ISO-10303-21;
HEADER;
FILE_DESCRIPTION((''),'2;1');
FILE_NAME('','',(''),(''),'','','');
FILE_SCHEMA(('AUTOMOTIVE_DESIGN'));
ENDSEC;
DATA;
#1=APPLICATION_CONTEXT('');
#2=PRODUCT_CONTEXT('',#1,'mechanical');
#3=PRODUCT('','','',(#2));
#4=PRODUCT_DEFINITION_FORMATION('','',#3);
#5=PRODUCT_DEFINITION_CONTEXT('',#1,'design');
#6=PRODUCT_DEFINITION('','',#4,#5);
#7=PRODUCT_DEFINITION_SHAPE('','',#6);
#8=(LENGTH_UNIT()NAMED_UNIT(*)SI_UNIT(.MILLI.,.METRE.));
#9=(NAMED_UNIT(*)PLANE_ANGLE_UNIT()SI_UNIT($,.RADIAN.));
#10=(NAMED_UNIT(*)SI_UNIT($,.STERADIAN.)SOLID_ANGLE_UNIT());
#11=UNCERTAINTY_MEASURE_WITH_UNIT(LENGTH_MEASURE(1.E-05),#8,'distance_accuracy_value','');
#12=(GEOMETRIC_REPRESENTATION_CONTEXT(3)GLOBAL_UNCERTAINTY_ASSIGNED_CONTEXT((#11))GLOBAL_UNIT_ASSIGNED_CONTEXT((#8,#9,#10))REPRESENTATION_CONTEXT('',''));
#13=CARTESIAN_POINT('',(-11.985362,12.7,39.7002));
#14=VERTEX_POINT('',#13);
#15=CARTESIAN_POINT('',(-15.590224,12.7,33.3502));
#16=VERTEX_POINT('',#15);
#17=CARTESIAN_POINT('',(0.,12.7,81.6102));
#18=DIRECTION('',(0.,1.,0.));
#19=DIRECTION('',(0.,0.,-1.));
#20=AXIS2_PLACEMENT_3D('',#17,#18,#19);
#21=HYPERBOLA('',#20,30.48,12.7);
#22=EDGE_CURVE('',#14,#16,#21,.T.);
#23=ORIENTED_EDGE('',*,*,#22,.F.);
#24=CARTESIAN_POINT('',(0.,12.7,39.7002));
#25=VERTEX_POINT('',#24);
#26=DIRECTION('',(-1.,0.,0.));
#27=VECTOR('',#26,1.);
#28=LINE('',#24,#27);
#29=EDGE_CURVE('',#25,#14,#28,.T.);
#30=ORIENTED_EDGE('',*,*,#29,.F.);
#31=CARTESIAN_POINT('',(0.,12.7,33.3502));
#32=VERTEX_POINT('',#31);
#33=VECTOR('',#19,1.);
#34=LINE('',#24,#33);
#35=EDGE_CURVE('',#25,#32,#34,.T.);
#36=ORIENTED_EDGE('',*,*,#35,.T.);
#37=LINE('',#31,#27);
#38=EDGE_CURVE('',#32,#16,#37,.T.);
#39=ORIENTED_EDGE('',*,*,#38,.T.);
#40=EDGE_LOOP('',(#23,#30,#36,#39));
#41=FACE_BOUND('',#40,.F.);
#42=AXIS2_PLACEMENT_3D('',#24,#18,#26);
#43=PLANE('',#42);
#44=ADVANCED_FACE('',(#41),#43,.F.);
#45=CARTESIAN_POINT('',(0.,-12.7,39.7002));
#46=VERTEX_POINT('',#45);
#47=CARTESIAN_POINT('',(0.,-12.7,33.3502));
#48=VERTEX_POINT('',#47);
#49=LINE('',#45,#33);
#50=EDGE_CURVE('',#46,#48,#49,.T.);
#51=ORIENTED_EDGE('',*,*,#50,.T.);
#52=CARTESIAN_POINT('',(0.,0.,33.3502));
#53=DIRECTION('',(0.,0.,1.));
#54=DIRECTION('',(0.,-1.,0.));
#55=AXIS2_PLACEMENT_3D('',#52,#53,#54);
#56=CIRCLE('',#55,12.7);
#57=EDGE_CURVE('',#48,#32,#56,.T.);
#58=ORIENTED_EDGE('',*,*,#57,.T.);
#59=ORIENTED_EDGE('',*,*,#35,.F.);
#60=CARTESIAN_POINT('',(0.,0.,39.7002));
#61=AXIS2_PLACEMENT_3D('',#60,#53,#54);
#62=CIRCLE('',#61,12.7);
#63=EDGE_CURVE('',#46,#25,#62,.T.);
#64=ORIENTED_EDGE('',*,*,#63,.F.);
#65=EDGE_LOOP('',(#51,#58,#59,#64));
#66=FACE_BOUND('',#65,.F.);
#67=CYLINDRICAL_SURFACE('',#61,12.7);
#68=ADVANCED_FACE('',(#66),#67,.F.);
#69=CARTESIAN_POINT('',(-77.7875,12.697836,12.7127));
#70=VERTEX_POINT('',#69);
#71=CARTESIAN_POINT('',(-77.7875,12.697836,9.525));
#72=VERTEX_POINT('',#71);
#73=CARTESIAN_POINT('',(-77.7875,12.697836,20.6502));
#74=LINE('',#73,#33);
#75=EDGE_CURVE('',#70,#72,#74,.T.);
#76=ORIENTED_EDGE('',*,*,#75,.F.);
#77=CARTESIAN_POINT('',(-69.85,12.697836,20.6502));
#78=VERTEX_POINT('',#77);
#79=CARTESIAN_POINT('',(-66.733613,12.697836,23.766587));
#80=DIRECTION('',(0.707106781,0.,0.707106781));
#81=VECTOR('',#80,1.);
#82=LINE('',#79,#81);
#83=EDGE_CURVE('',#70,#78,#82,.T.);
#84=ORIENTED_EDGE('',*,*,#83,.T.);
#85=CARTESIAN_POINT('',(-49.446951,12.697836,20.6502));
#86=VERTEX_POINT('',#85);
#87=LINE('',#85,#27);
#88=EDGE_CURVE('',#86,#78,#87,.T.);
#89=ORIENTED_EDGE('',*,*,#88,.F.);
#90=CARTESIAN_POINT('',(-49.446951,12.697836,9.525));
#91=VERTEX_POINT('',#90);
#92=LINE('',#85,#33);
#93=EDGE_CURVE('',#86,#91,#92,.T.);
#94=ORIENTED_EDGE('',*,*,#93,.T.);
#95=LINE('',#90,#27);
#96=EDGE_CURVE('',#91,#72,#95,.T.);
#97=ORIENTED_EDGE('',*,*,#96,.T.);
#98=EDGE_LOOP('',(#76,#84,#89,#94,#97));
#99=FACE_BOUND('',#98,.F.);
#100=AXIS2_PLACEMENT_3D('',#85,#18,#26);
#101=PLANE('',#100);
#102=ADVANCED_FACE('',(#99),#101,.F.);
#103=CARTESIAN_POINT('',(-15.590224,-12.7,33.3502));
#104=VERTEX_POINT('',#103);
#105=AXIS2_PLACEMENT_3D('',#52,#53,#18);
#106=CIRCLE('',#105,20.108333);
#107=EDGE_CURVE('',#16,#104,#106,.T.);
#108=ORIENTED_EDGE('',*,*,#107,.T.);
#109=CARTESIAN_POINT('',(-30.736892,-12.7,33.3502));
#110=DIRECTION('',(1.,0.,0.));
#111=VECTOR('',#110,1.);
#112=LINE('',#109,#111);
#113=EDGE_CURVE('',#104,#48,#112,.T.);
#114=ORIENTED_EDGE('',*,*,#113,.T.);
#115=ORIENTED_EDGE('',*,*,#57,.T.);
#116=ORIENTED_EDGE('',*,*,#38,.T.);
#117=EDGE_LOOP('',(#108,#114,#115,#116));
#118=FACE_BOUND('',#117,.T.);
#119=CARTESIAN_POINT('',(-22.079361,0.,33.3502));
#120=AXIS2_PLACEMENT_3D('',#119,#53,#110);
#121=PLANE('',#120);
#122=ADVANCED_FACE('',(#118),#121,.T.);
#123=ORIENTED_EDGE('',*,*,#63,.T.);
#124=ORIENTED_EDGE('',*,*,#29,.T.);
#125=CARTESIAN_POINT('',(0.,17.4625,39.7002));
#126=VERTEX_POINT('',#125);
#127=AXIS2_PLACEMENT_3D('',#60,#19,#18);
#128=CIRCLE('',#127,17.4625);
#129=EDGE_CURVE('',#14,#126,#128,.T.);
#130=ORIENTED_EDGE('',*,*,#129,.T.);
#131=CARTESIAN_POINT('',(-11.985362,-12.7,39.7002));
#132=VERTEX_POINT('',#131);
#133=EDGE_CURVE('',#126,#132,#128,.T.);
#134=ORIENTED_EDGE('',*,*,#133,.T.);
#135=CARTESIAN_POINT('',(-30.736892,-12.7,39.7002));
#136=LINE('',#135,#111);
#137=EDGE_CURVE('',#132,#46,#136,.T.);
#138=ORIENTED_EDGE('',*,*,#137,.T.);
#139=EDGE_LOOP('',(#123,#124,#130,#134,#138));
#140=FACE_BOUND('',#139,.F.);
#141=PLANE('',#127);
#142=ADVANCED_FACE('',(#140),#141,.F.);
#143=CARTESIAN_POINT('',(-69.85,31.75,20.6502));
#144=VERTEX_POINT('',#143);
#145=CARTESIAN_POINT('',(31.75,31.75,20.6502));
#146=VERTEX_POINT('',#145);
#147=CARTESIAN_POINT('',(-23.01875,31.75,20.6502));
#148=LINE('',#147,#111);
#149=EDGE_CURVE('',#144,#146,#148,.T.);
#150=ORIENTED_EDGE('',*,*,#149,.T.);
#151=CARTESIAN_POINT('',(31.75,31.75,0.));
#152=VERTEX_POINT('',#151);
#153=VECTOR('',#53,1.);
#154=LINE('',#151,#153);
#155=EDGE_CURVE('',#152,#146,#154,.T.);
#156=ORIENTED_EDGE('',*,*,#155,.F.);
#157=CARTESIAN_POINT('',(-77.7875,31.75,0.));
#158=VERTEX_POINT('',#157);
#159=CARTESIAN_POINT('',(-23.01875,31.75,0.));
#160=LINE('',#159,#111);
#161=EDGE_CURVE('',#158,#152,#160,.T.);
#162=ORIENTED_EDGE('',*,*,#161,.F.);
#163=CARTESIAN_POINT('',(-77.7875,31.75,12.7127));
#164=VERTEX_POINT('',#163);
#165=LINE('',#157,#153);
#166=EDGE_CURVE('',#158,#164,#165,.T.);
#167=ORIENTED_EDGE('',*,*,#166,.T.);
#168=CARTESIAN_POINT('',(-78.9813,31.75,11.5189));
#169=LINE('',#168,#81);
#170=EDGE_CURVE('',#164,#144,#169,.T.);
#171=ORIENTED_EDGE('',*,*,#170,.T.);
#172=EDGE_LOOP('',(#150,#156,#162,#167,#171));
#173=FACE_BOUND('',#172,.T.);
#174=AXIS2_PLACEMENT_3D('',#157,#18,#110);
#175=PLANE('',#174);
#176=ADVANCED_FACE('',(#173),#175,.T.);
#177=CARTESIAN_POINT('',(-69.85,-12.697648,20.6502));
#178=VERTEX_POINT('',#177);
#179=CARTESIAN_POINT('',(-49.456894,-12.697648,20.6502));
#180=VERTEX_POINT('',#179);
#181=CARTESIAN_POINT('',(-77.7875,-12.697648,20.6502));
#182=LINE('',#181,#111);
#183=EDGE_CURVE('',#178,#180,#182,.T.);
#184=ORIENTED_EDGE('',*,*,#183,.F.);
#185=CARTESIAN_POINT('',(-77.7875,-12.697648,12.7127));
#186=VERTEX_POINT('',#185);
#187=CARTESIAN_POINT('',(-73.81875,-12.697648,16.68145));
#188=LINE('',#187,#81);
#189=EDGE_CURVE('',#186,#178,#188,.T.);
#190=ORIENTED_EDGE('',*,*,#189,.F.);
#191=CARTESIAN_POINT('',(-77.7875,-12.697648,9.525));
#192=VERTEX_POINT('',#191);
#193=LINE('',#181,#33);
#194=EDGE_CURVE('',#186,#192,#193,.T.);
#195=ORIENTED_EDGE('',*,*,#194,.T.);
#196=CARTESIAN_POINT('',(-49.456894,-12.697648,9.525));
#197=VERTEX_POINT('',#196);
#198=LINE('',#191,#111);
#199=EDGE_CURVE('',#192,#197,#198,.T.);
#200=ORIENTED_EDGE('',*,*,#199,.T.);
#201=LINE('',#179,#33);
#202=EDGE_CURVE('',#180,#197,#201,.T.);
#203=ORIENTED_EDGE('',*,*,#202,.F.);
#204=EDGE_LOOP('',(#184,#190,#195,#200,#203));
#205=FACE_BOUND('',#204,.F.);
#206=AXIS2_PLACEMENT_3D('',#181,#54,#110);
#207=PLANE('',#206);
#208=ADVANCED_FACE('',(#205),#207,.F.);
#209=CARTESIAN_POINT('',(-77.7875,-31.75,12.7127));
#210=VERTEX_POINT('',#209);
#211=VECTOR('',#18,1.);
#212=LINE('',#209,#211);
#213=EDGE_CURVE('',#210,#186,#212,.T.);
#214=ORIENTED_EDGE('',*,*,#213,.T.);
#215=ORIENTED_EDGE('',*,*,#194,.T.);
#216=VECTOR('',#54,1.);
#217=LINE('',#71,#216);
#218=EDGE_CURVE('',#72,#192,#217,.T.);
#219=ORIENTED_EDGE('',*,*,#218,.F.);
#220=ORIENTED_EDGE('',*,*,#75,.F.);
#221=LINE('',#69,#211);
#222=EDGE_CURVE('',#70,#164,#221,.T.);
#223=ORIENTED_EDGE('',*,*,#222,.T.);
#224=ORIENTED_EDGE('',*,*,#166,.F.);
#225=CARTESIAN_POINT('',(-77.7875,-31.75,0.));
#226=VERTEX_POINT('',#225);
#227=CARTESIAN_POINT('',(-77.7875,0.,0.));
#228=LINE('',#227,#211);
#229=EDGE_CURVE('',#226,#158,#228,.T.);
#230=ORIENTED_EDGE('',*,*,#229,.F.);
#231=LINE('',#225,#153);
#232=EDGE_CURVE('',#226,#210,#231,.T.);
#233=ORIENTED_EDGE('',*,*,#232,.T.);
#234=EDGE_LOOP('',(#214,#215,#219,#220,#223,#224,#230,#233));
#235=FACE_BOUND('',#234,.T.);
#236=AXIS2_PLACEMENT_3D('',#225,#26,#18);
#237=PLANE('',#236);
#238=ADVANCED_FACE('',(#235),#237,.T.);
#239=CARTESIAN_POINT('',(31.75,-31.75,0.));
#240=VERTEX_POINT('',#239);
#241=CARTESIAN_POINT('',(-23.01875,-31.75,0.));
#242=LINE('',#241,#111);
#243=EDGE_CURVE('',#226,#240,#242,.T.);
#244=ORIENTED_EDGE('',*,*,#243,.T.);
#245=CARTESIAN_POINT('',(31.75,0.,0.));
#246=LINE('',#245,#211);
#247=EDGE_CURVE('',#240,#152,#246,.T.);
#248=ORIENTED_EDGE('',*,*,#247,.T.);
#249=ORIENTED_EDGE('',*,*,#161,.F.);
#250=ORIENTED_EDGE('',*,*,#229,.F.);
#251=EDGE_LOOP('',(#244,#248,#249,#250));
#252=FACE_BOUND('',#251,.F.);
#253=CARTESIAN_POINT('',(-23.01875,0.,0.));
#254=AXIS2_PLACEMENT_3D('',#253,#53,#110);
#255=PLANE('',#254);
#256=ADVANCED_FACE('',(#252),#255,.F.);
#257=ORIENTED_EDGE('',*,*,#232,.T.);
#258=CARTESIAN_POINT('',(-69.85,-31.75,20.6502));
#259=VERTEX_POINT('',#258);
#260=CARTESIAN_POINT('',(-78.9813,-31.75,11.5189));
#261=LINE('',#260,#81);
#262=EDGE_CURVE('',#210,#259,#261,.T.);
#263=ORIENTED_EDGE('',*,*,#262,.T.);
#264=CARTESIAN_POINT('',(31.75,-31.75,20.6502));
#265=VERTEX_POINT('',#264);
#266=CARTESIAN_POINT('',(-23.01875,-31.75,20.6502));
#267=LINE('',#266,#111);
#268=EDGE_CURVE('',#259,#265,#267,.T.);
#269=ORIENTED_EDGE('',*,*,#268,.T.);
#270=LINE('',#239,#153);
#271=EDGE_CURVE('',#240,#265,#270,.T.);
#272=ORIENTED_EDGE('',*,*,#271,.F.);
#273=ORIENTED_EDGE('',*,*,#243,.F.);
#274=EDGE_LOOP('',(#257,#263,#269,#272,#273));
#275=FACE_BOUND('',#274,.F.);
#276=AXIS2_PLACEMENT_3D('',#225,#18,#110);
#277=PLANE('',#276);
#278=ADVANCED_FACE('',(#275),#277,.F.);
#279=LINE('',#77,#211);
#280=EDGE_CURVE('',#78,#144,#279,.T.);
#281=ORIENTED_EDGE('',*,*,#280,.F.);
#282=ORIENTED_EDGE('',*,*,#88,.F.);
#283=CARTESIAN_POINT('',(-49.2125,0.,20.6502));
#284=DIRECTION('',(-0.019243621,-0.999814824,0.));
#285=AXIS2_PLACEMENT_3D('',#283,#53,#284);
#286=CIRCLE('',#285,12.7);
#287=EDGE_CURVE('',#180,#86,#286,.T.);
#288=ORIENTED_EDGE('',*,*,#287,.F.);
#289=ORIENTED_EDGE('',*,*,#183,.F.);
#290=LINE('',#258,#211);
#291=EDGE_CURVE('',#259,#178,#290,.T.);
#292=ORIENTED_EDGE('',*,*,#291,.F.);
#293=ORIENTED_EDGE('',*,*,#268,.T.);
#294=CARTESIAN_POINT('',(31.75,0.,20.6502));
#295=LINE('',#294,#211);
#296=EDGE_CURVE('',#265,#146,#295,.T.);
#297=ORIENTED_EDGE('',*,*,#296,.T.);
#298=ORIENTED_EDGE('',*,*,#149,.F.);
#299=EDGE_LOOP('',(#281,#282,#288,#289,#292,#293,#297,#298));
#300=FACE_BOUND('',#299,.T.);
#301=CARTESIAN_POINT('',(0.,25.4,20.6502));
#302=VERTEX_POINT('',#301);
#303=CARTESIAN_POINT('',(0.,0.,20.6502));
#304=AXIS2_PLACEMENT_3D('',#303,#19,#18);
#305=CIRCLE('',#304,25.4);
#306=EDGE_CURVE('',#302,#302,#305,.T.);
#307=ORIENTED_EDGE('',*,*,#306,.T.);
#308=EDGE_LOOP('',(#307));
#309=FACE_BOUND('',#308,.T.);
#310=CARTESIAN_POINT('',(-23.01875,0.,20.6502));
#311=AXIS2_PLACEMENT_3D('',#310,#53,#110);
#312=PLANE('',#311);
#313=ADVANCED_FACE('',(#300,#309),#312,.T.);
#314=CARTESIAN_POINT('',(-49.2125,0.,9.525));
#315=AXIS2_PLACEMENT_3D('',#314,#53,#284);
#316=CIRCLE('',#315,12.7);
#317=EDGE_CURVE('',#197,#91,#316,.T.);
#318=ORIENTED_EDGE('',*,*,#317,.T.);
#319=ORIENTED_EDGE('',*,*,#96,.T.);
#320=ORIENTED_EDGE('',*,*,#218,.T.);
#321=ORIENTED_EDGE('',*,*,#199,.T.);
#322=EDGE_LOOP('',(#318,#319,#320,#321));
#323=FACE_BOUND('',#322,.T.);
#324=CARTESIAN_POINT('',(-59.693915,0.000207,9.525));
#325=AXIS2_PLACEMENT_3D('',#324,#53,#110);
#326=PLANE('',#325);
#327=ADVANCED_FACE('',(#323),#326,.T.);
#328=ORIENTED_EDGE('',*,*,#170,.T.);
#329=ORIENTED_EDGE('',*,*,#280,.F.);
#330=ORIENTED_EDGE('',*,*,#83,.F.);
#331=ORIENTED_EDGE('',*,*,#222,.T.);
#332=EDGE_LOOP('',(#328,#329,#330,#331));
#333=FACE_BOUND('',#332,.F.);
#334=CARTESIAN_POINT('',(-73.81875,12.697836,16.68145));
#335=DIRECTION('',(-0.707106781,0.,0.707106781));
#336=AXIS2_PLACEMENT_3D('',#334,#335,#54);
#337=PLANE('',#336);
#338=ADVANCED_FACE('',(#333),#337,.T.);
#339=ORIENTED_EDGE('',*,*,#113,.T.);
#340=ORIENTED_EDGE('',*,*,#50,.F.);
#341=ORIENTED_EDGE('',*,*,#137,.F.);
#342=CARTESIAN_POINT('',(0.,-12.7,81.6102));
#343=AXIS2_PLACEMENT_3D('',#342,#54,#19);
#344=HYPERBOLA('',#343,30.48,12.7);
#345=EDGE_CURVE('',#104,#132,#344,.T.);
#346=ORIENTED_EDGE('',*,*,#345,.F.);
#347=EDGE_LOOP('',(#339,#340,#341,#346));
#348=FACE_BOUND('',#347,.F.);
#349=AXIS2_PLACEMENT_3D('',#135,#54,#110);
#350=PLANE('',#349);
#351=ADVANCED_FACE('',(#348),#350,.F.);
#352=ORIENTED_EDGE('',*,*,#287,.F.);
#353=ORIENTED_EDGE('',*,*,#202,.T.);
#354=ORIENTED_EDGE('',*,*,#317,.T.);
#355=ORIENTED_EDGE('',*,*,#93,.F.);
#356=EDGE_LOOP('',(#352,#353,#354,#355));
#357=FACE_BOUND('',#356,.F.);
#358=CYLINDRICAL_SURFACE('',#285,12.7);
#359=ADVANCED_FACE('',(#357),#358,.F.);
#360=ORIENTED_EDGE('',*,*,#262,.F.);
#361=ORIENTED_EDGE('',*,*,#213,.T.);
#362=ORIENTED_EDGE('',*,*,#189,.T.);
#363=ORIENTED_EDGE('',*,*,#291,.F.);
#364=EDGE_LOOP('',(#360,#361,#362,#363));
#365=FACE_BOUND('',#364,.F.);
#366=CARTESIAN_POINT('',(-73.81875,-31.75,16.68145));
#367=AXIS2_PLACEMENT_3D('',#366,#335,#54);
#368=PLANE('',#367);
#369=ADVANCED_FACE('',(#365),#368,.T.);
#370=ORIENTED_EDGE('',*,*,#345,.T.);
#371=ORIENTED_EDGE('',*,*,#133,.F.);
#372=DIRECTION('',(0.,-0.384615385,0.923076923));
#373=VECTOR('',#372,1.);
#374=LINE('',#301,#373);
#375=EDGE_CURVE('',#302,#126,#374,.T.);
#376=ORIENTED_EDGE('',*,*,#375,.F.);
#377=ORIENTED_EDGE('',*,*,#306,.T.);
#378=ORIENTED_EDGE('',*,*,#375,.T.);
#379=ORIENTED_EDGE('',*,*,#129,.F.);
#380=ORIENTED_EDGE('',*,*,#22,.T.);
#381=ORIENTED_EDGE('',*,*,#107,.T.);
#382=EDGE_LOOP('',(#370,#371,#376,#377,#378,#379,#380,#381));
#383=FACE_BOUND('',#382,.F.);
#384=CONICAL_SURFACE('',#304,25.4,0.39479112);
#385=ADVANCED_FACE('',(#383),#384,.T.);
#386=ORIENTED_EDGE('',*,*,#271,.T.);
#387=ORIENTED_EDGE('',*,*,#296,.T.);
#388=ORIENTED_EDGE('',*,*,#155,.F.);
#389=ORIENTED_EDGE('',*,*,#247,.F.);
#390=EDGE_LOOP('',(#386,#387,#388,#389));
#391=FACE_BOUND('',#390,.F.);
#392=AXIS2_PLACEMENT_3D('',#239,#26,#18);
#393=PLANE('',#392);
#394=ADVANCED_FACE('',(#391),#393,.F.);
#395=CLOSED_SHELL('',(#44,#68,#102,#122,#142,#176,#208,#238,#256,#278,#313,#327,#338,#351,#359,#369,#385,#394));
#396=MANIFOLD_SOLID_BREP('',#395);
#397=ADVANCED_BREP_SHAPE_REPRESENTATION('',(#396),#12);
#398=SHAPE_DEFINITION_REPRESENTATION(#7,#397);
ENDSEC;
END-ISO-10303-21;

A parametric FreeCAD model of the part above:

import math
import FreeCAD as App
import Part
import Sketcher
Q = App.Units.Quantity


def edges_at(feature, points):
    """Names of the edges that pass closest to the given points."""
    edges = feature.Shape.Edges
    near = lambda p: min(range(len(edges)), key=lambda i: edges[i].distToShape(Part.Vertex(*p))[0])
    return sorted({f"Edge{near(p) + 1}" for p in points})


def add_polygon(sketch, points):
    """Adds a closed chain of lines whose ends are joined by coincident constraints."""
    first, n = sketch.GeometryCount, len(points)
    for a, b in zip(points, points[1:] + points[:1]):
        sketch.addGeometry(Part.LineSegment(App.Vector(*a, 0), App.Vector(*b, 0)), False)
    for i in range(n):
        sketch.addConstraint(Sketcher.Constraint("Coincident", first + i, 2, first + (i + 1) % n, 1))

doc = App.newDocument("Part")
params = doc.addObject("Spreadsheet::Sheet", "Params")
for row, (alias, value) in enumerate([
    ("sketch1_height", "2.5 in"),
    ("sketch1_width", "4.3125 in"),
    ("pad1_length", "0.813 in"),
    ("sketch2_width", "1 in"),
    ("sketch2_height", "0.75 in"),
    ("sketch2_width2", "0.6875 in"),
    ("revolution_angle", "360 deg"),
    ("sketch3_radius", "0.5 in"),
    ("pocket1_length", "0.25 in"),
    ("sketch4_radius", "0.5 in"),
    ("pocket2_length", "0.438 in"),
    ("chamfer_size", "0.3125 in"),
], start=1):
    params.set(f"A{row}", alias)
    params.set(f"B{row}", "=" + value)
    params.setAlias(f"B{row}", alias)

body = doc.addObject("PartDesign::Body", "Body")

sketch1 = body.newObject("Sketcher::SketchObject", "Sketch")
sketch1.AttachmentSupport = (doc.getObject("XY_Plane"), [""])
sketch1.MapMode = "FlatFace"
add_polygon(sketch1, [(-78, 32), (-78, -32), (32, -32), (32, 32)])
sketch1.addConstraint([
    Sketcher.Constraint("Vertical", 0),
    Sketcher.Constraint("Horizontal", 1),
    Sketcher.Constraint("Vertical", 2),
    Sketcher.Constraint("Horizontal", 3),
    Sketcher.Constraint("DistanceY", 0, 2, 0, 1, Q("2.5 in")),
    Sketcher.Constraint("DistanceX", 1, 1, 1, 2, Q("4.3125 in")),
    Sketcher.Constraint("DistanceY", 0, 2, -1, 1, Q("1.25 in")),
    Sketcher.Constraint("DistanceX", -1, 1, 1, 2, Q("1.25 in")),
])
sketch1.setExpression("Constraints[8]", "Params.sketch1_height")
sketch1.setExpression("Constraints[9]", "Params.sketch1_width")
pad1 = body.newObject("PartDesign::Pad", "Pad")
pad1.Profile = sketch1
pad1.setExpression("Length", "Params.pad1_length")

sketch2 = body.newObject("Sketcher::SketchObject", "Sketch001")
sketch2.AttachmentSupport = (doc.getObject("YZ_Plane"), [""])
sketch2.MapMode = "FlatFace"
add_polygon(sketch2, [(0, 21), (25, 21), (17, 40), (0, 40)])
sketch2.addConstraint([
    Sketcher.Constraint("Horizontal", 0),
    Sketcher.Constraint("Horizontal", 2),
    Sketcher.Constraint("Vertical", 3),
    Sketcher.Constraint("PointOnObject", 2, 2, -2),
    Sketcher.Constraint("DistanceX", 0, 1, 0, 2, Q("1 in")),
    Sketcher.Constraint("DistanceY", 3, 2, 3, 1, Q("0.75 in")),
    Sketcher.Constraint("DistanceX", 2, 2, 2, 1, Q("0.6875 in")),
    Sketcher.Constraint("DistanceY", -1, 1, 0, 2, Q("0.813 in")),
])
sketch2.setExpression("Constraints[8]", "Params.sketch2_width")
sketch2.setExpression("Constraints[9]", "Params.sketch2_height")
sketch2.setExpression("Constraints[10]", "Params.sketch2_width2")
revolution = body.newObject("PartDesign::Revolution", "Revolution")
revolution.Profile = sketch2
revolution.ReferenceAxis = (sketch2, ["V_Axis"])
revolution.setExpression("Angle", "Params.revolution_angle")

sketch3 = body.newObject("Sketcher::SketchObject", "Sketch002")
sketch3.AttachmentSupport = (doc.getObject("XY_Plane"), [""])
sketch3.MapMode = "FlatFace"
sketch3.AttachmentOffset = App.Placement(App.Vector(0, 0, 1.563 * 25.4), App.Rotation())
sketch3.addGeometry([
    Part.LineSegment(App.Vector(-31, -13, 0), App.Vector(0, -13, 0)),
    Part.ArcOfCircle(Part.Circle(App.Vector(0, 0, 0), App.Vector(0, 0, 1), 13), math.radians(-90), math.radians(90)),
    Part.LineSegment(App.Vector(0, 13, 0), App.Vector(-31, 13, 0)),
    Part.LineSegment(App.Vector(-31, 13, 0), App.Vector(-31, -13, 0)),
], False)
sketch3.addConstraint([
    Sketcher.Constraint("Tangent", 0, 2, 1, 1),
    Sketcher.Constraint("Tangent", 1, 2, 2, 1),
    Sketcher.Constraint("Coincident", 2, 2, 3, 1),
    Sketcher.Constraint("Coincident", 3, 2, 0, 1),
    Sketcher.Constraint("Horizontal", 0),
    Sketcher.Constraint("Horizontal", 2),
    Sketcher.Constraint("Vertical", 3),
    Sketcher.Constraint("Coincident", 1, 3, -1, 1),
    Sketcher.Constraint("Radius", 1, Q("0.5 in")),
    Sketcher.Constraint("DistanceX", 0, 1, 0, 2, Q("30.736892 mm")),
])
sketch3.setExpression("Constraints[8]", "Params.sketch3_radius")
pocket1 = body.newObject("PartDesign::Pocket", "Pocket")
pocket1.Profile = sketch3
pocket1.setExpression("Length", "Params.pocket1_length")

sketch4 = body.newObject("Sketcher::SketchObject", "Sketch003")
sketch4.AttachmentSupport = (doc.getObject("XY_Plane"), [""])
sketch4.MapMode = "FlatFace"
sketch4.AttachmentOffset = App.Placement(App.Vector(0, 0, 0.813 * 25.4), App.Rotation())
sketch4.addGeometry([
    Part.LineSegment(App.Vector(-78, -13, 0), App.Vector(-49, -13, 0)),
    Part.ArcOfCircle(Part.Circle(App.Vector(-49, 0, 0), App.Vector(0, 0, 1), 13), math.radians(-91), math.radians(91)),
    Part.LineSegment(App.Vector(-49, 13, 0), App.Vector(-78, 13, 0)),
    Part.LineSegment(App.Vector(-78, 13, 0), App.Vector(-78, -13, 0)),
], False)
sketch4.addConstraint([
    Sketcher.Constraint("Coincident", 0, 2, 1, 1),
    Sketcher.Constraint("Coincident", 1, 2, 2, 1),
    Sketcher.Constraint("Coincident", 2, 2, 3, 1),
    Sketcher.Constraint("Coincident", 3, 2, 0, 1),
    Sketcher.Constraint("Horizontal", 0),
    Sketcher.Constraint("Horizontal", 2),
    Sketcher.Constraint("Vertical", 3),
    Sketcher.Constraint("PointOnObject", 1, 3, -1),
    Sketcher.Constraint("Radius", 1, Q("0.5 in")),
    Sketcher.Constraint("DistanceX", 1, 3, -1, 1, Q("1.9375 in")),
    Sketcher.Constraint("DistanceX", 2, 2, -1, 1, Q("3.0625 in")),
    Sketcher.Constraint("DistanceX", 2, 2, 2, 1, Q("28.340549 mm")),
    Sketcher.Constraint("DistanceX", 0, 1, 0, 2, Q("28.330606 mm")),
])
sketch4.setExpression("Constraints[8]", "Params.sketch4_radius")
pocket2 = body.newObject("PartDesign::Pocket", "Pocket001")
pocket2.Profile = sketch4
pocket2.setExpression("Length", "Params.pocket2_length")
doc.recompute()

chamfer = body.newObject("PartDesign::Chamfer", "Chamfer")
chamfer.Base = (pocket2, edges_at(pocket2, [(-77.787, -22.224, 20.65), (-77.787, 22.224, 20.65)]))
chamfer.setExpression("Size", "Params.chamfer_size")

doc.recompute()
